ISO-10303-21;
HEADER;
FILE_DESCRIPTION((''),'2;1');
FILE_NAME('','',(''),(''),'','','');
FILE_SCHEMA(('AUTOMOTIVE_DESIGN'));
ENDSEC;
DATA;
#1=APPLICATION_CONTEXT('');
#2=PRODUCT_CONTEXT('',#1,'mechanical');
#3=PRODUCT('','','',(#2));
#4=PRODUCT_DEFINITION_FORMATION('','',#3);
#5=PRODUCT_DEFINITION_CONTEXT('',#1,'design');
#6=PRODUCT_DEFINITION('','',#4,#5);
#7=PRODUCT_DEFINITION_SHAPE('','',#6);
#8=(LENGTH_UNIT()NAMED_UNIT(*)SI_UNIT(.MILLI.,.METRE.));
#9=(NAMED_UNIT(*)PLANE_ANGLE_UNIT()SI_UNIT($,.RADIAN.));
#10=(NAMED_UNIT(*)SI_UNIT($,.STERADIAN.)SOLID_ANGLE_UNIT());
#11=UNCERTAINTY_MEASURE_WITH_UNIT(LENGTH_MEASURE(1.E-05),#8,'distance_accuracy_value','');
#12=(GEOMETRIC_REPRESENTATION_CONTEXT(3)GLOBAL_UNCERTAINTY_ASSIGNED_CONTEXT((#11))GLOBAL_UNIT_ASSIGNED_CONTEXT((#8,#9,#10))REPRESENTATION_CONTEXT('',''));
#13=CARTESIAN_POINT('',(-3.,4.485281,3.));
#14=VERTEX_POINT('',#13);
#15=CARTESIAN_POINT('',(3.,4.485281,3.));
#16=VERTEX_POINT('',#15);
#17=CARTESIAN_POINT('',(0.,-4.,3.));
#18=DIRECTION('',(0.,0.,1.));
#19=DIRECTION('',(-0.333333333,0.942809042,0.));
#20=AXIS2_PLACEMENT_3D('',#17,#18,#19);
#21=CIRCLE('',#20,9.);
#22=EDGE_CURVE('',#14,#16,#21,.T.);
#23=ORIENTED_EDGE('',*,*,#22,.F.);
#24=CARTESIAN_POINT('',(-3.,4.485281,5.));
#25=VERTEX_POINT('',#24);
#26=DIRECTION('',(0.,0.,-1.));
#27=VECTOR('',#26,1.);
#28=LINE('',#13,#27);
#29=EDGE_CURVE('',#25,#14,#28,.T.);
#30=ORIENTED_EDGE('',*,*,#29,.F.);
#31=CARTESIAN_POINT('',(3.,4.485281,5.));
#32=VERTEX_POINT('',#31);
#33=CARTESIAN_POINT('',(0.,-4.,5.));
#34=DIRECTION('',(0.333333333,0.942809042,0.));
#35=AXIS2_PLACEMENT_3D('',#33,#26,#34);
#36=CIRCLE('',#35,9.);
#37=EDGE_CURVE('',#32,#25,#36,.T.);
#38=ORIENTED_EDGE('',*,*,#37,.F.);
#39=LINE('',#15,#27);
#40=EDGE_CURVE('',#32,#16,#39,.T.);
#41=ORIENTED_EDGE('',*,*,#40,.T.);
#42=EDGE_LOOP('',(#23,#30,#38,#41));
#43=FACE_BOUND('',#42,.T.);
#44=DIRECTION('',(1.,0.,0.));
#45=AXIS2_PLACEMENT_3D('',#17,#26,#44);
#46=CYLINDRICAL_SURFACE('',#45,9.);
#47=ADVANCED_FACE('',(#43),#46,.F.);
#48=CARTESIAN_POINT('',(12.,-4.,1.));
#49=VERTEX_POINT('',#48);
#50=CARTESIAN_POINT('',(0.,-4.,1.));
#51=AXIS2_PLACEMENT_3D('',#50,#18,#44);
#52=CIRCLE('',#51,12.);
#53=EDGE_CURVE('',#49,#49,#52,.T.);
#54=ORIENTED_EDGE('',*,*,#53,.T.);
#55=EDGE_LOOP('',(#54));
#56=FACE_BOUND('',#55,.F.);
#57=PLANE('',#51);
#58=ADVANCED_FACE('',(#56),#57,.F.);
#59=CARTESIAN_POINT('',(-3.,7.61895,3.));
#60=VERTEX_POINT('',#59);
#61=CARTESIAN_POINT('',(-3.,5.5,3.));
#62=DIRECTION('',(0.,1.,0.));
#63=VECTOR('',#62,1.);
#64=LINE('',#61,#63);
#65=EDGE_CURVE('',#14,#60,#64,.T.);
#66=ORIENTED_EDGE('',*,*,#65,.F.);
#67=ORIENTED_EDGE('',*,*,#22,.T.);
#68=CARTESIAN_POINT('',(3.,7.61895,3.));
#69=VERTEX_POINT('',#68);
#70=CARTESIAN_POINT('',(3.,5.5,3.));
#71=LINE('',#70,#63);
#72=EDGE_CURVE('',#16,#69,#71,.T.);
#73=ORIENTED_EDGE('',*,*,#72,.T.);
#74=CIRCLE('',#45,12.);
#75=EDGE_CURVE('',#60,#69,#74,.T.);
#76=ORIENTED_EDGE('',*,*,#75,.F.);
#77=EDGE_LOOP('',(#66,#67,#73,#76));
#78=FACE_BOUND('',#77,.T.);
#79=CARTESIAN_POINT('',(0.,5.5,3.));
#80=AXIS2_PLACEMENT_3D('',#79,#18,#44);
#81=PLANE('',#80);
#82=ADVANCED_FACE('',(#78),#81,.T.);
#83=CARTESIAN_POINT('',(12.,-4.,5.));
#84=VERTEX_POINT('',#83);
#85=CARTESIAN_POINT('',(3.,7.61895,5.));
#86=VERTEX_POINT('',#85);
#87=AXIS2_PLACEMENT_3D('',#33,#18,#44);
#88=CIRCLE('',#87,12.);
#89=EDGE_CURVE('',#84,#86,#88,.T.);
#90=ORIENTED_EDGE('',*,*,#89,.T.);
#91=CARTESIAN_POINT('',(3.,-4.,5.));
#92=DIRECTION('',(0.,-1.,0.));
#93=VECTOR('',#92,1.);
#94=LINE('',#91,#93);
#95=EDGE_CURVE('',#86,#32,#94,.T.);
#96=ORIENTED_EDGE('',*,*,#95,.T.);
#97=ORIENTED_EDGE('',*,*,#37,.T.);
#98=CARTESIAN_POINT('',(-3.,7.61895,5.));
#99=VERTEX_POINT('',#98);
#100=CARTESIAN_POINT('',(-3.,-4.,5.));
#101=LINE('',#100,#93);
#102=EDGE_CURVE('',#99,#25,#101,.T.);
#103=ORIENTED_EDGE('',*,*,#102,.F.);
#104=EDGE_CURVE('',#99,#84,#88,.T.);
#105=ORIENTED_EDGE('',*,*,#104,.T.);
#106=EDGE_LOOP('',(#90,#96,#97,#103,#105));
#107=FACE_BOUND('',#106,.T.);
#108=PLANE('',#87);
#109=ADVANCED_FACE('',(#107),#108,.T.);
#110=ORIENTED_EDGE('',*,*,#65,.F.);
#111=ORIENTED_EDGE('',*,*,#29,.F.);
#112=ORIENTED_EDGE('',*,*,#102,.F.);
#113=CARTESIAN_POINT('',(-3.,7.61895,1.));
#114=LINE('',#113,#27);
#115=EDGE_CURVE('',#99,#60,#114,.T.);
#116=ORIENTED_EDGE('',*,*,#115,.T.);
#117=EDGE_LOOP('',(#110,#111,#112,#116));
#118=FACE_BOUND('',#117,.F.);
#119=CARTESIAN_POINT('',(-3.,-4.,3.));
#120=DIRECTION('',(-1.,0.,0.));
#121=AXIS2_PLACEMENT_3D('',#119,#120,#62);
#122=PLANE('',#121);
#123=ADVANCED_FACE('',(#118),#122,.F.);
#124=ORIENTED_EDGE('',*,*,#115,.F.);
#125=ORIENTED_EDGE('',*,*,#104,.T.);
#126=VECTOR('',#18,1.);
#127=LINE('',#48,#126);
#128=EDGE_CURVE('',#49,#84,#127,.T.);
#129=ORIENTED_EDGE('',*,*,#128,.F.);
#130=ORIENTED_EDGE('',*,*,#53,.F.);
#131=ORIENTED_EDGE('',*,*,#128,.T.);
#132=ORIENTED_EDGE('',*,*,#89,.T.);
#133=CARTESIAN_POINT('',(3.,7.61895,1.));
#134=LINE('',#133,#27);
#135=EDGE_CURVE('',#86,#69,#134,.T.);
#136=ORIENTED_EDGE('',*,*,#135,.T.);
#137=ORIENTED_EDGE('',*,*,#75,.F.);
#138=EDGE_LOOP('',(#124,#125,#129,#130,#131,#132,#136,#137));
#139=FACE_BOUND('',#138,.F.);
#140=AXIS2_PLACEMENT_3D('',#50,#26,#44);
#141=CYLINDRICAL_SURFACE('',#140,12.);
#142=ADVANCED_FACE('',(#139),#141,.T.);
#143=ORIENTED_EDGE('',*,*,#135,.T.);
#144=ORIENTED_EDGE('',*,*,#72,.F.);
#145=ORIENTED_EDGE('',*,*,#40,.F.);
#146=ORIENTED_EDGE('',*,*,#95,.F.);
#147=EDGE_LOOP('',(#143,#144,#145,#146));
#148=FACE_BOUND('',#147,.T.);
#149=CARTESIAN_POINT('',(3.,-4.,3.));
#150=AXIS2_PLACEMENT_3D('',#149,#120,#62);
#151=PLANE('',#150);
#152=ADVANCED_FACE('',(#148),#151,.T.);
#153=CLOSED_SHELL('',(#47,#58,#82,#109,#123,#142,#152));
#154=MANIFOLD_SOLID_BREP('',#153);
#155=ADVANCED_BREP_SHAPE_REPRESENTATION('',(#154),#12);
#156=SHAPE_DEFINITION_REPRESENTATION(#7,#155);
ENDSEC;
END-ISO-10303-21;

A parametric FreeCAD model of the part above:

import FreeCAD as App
import Part
import Sketcher
Q = App.Units.Quantity

doc = App.newDocument("Part")
body = doc.addObject("PartDesign::Body", "Body")

sketch1 = body.newObject("Sketcher::SketchObject", "Sketch")
sketch1.AttachmentSupport = (doc.getObject("XY_Plane"), [""])
sketch1.MapMode = "FlatFace"
sketch1.AttachmentOffset = App.Placement(App.Vector(0, 0, 3), App.Rotation())
sketch1.addGeometry([
    Part.LineSegment(App.Vector(-3, 15, 0), App.Vector(-3, -4, 0)),
    Part.LineSegment(App.Vector(-3, -4, 0), App.Vector(3, -4, 0)),
    Part.LineSegment(App.Vector(3, -4, 0), App.Vector(3, 15, 0)),
    Part.LineSegment(App.Vector(3, 15, 0), App.Vector(-3, 15, 0)),
], False)
sketch1.addConstraint([
    Sketcher.Constraint("Coincident", 0, 2, 1, 1),
    Sketcher.Constraint("Coincident", 1, 2, 2, 1),
    Sketcher.Constraint("Coincident", 2, 2, 3, 1),
    Sketcher.Constraint("Coincident", 3, 2, 0, 1),
    Sketcher.Constraint("Vertical", 0),
    Sketcher.Constraint("Horizontal", 1),
    Sketcher.Constraint("Vertical", 2),
    Sketcher.Constraint("Horizontal", 3),
    Sketcher.Constraint("DistanceX", 1, 1, 1, 2, Q("6 mm")),
    Sketcher.Constraint("DistanceY", 0, 2, 0, 1, Q("19 mm")),
    Sketcher.Constraint("DistanceX", 0, 2, -1, 1, Q("3 mm")),
    Sketcher.Constraint("DistanceY", 0, 2, -1, 1, Q("4 mm")),
])
pad1 = body.newObject("PartDesign::Pad", "Pad")
pad1.Profile = sketch1
pad1.Length = 10
body2 = doc.addObject("PartDesign::Body", "Body001")

sketch2 = body2.newObject("Sketcher::SketchObject", "Sketch001")
sketch2.AttachmentSupport = (doc.getObject("XY_Plane001"), [""])
sketch2.MapMode = "FlatFace"
sketch2.AttachmentOffset = App.Placement(App.Vector(0, 0, 3), App.Rotation())
sketch2.addGeometry(Part.Circle(App.Vector(0, -4, 0), App.Vector(0, 0, 1), 9), False)
sketch2.addConstraint([
    Sketcher.Constraint("PointOnObject", 0, 3, -2),
    Sketcher.Constraint("Diameter", 0, Q("18 mm")),
    Sketcher.Constraint("DistanceY", 0, 3, -1, 1, Q("4 mm")),
])
pad2 = body2.newObject("PartDesign::Pad", "Pad001")
pad2.Profile = sketch2
pad2.Length = 10
body3 = doc.addObject("PartDesign::Body", "Body002")

sketch3 = body3.newObject("Sketcher::SketchObject", "Sketch002")
sketch3.AttachmentSupport = (doc.getObject("XY_Plane002"), [""])
sketch3.MapMode = "FlatFace"
sketch3.AttachmentOffset = App.Placement(App.Vector(0, 0, 1), App.Rotation())
sketch3.addGeometry(Part.Circle(App.Vector(0, -4, 0), App.Vector(0, 0, 1), 12), False)
sketch3.addConstraint([
    Sketcher.Constraint("PointOnObject", 0, 3, -2),
    Sketcher.Constraint("Diameter", 0, Q("24 mm")),
    Sketcher.Constraint("DistanceY", 0, 3, -1, 1, Q("4 mm")),
])
pad3 = body3.newObject("PartDesign::Pad", "Pad002")
pad3.Profile = sketch3
pad3.Length = 4
doc.recompute()

boolean = body3.newObject("PartDesign::Boolean", "Boolean")
boolean.Type = "Cut"
boolean.addObjects([body2])
doc.recompute()

boolean2 = body3.newObject("PartDesign::Boolean", "Boolean001")
boolean2.Type = "Cut"
boolean2.addObjects([body])

doc.recompute()
